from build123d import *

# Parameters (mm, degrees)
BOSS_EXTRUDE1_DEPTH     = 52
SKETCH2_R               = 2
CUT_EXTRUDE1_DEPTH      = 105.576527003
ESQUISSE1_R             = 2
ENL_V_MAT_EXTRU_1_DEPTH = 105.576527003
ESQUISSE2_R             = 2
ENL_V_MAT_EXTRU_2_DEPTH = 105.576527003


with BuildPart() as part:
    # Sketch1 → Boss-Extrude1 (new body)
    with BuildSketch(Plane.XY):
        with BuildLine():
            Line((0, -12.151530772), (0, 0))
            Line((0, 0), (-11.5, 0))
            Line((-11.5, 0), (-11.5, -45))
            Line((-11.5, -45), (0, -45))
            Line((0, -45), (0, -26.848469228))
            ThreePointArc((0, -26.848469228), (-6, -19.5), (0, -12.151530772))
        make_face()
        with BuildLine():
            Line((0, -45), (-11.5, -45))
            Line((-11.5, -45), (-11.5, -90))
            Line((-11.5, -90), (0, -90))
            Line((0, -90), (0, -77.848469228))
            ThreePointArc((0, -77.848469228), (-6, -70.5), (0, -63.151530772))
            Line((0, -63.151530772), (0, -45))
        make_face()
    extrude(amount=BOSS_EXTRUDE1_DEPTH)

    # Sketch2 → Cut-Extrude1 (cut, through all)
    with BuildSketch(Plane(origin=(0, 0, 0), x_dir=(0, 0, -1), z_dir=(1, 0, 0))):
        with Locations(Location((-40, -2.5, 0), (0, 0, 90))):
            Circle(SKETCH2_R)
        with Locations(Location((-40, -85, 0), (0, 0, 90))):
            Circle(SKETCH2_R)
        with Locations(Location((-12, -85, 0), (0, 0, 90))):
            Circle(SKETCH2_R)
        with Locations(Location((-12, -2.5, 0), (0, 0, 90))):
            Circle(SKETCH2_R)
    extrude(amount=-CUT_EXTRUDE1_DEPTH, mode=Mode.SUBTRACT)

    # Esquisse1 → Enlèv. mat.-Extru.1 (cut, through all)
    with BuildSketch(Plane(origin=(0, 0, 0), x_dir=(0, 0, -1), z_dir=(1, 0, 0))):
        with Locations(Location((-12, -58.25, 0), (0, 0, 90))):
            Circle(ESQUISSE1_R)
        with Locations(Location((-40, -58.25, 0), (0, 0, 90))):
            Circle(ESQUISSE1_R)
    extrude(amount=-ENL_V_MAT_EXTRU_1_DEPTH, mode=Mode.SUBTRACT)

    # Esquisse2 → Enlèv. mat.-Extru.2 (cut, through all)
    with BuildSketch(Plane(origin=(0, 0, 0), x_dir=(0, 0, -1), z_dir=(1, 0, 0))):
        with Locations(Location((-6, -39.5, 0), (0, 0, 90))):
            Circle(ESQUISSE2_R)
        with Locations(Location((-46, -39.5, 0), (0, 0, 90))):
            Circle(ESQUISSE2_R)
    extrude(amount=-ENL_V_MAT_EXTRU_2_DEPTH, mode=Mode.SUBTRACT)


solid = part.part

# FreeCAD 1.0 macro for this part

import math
import FreeCAD as App
import Part
import Sketcher
Q = App.Units.Quantity

doc = App.newDocument("Part")
body = doc.addObject("PartDesign::Body", "Body")

# Sketch on XY plane
sketch1 = body.newObject("Sketcher::SketchObject", "Sketch")
sketch1.AttachmentSupport = (doc.getObject("XY_Plane"), [""])
sketch1.MapMode = "FlatFace"
sketch1.addGeometry([
    Part.LineSegment(App.Vector(0, -12, 0), App.Vector(0, 0, 0)),  # 0
    Part.LineSegment(App.Vector(0, 0, 0), App.Vector(-12, 0, 0)),  # 1
    Part.LineSegment(App.Vector(-12, 0, 0), App.Vector(-12, -90, 0)),  # 2
    Part.LineSegment(App.Vector(-12, -90, 0), App.Vector(0, -90, 0)),  # 3
    Part.LineSegment(App.Vector(0, -90, 0), App.Vector(0, -78, 0)),  # 4
    Part.ArcOfCircle(Part.Circle(App.Vector(2, -70, 0), App.Vector(0, 0, 1), 8), math.radians(102), math.radians(258)),  # 5
    Part.LineSegment(App.Vector(0, -63, 0), App.Vector(0, -27, 0)),  # 6
    Part.ArcOfCircle(Part.Circle(App.Vector(2, -20, 0), App.Vector(0, 0, 1), 8), math.radians(102), math.radians(258)),  # 7
], False)
sketch1.addConstraint([
    Sketcher.Constraint("Coincident", 0, 2, 1, 1),
    Sketcher.Constraint("Coincident", 1, 2, 2, 1),
    Sketcher.Constraint("Coincident", 2, 2, 3, 1),
    Sketcher.Constraint("Coincident", 3, 2, 4, 1),
    Sketcher.Constraint("Coincident", 4, 2, 5, 2),
    Sketcher.Constraint("Coincident", 5, 1, 6, 1),
    Sketcher.Constraint("Coincident", 6, 2, 7, 2),
    Sketcher.Constraint("Coincident", 7, 1, 0, 1),
    Sketcher.Constraint("Vertical", 0),
    Sketcher.Constraint("Horizontal", 1),
    Sketcher.Constraint("Vertical", 2),
    Sketcher.Constraint("Horizontal", 3),
    Sketcher.Constraint("Vertical", 4),
    Sketcher.Constraint("Vertical", 6),
    Sketcher.Constraint("Coincident", 0, 2, -1, 1),
    Sketcher.Constraint("Equal", 5, 7),
    Sketcher.Constraint("PointOnObject", 3, 2, -2),
    Sketcher.Constraint("PointOnObject", 5, 1, -2),
    Sketcher.Constraint("Vertical", 5, 3, 7, 3),
    Sketcher.Constraint("Equal", 0, 4),
    Sketcher.Constraint("Radius", 5, Q("7.5 mm")),
    Sketcher.Constraint("DistanceY", 2, 2, 2, 1, Q("90 mm")),
    Sketcher.Constraint("DistanceX", 1, 2, 1, 1, Q("11.5 mm")),
    Sketcher.Constraint("DistanceY", 5, 3, 7, 3, Q("51 mm")),
    Sketcher.Constraint("DistanceX", 1, 2, 7, 3, Q("13 mm")),
])
pad1 = body.newObject("PartDesign::Pad", "Pad")
pad1.Profile = sketch1
pad1.Length = 52

# Sketch on YZ plane
sketch2 = body.newObject("Sketcher::SketchObject", "Sketch001")
sketch2.AttachmentSupport = (doc.getObject("YZ_Plane"), [""])
sketch2.MapMode = "FlatFace"
sketch2.addGeometry([
    Part.Circle(App.Vector(-2.5, 40, 0), App.Vector(0, 0, 1), 2),
    Part.Circle(App.Vector(-85, 40, 0), App.Vector(0, 0, 1), 2),
    Part.Circle(App.Vector(-85, 12, 0), App.Vector(0, 0, 1), 2),
    Part.Circle(App.Vector(-2.5, 12, 0), App.Vector(0, 0, 1), 2),
], False)
sketch2.addConstraint([
    Sketcher.Constraint("Equal", 0, 1),
    Sketcher.Constraint("Equal", 1, 2),
    Sketcher.Constraint("Equal", 2, 3),
    Sketcher.Constraint("Horizontal", 0, 3, 1, 3),
    Sketcher.Constraint("Horizontal", 2, 3, 3, 3),
    Sketcher.Constraint("Vertical", 1, 3, 2, 3),
    Sketcher.Constraint("Vertical", 0, 3, 3, 3),
    Sketcher.Constraint("Diameter", 0, Q("4 mm")),
    Sketcher.Constraint("DistanceY", -1, 1, 0, 3, Q("40 mm")),
    Sketcher.Constraint("DistanceX", 1, 3, -1, 1, Q("85 mm")),
    Sketcher.Constraint("DistanceY", -1, 1, 2, 3, Q("12 mm")),
    Sketcher.Constraint("DistanceX", 0, 3, -1, 1, Q("2.5 mm")),
])
pocket1 = body.newObject("PartDesign::Pocket", "Pocket")
pocket1.Profile = sketch2
pocket1.Type = "ThroughAll"

# Sketch on YZ plane
sketch3 = body.newObject("Sketcher::SketchObject", "Sketch002")
sketch3.AttachmentSupport = (doc.getObject("YZ_Plane"), [""])
sketch3.MapMode = "FlatFace"
sketch3.addGeometry([
    Part.Circle(App.Vector(-58.2, 12, 0), App.Vector(0, 0, 1), 2),
    Part.Circle(App.Vector(-58.2, 40, 0), App.Vector(0, 0, 1), 2),
], False)
sketch3.addConstraint([
    Sketcher.Constraint("Equal", 0, 1),
    Sketcher.Constraint("Vertical", 0, 3, 1, 3),
    Sketcher.Constraint("Diameter", 0, Q("4 mm")),
    Sketcher.Constraint("DistanceY", -1, 1, 0, 3, Q("12 mm")),
    Sketcher.Constraint("DistanceY", -1, 1, 1, 3, Q("40 mm")),
    Sketcher.Constraint("DistanceX", 0, 3, -1, 1, Q("58.25 mm")),
])
pocket2 = body.newObject("PartDesign::Pocket", "Pocket001")
pocket2.Profile = sketch3
pocket2.Type = "ThroughAll"

# Sketch on YZ plane
sketch4 = body.newObject("Sketcher::SketchObject", "Sketch003")
sketch4.AttachmentSupport = (doc.getObject("YZ_Plane"), [""])
sketch4.MapMode = "FlatFace"
sketch4.addGeometry([
    Part.Circle(App.Vector(-39.5, 6, 0), App.Vector(0, 0, 1), 2),
    Part.Circle(App.Vector(-39.5, 46, 0), App.Vector(0, 0, 1), 2),
], False)
sketch4.addConstraint([
    Sketcher.Constraint("Equal", 0, 1),
    Sketcher.Constraint("Vertical", 0, 3, 1, 3),
    Sketcher.Constraint("Diameter", 0, Q("4 mm")),
    Sketcher.Constraint("DistanceY", -1, 1, 0, 3, Q("6 mm")),
    Sketcher.Constraint("DistanceY", -1, 1, 1, 3, Q("46 mm")),
    Sketcher.Constraint("DistanceX", 0, 3, -1, 1, Q("39.5 mm")),
])
pocket3 = body.newObject("PartDesign::Pocket", "Pocket002")
pocket3.Profile = sketch4
pocket3.Type = "ThroughAll"

doc.recompute()
